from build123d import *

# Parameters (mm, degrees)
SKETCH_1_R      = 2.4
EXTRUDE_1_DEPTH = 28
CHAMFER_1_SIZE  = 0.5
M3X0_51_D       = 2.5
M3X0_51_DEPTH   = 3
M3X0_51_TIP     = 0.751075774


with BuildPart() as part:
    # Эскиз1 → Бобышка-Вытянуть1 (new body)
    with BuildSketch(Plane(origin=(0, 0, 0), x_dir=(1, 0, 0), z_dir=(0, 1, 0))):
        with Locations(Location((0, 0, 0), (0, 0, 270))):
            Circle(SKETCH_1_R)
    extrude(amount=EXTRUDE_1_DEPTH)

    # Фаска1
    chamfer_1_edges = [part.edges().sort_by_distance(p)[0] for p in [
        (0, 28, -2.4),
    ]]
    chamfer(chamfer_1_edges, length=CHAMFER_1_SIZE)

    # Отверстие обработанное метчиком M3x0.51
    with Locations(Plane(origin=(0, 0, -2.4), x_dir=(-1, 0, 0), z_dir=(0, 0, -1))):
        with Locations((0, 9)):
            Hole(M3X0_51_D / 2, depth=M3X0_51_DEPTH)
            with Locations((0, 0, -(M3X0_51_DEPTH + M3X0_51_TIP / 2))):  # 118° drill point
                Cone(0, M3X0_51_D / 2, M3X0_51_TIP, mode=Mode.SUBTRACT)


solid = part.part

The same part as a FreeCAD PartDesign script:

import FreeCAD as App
import Part
import Sketcher


def edges_at(feature, points):
    """Names of the edges that pass closest to the given points."""
    edges = feature.Shape.Edges
    near = lambda p: min(range(len(edges)), key=lambda i: edges[i].distToShape(Part.Vertex(*p))[0])
    return sorted({f"Edge{near(p) + 1}" for p in points})

doc = App.newDocument("Part")
body = doc.addObject("PartDesign::Body", "Body")

# Sketch on XZ plane
sketch1 = doc.addObject("Sketcher::SketchObject", "Sketch")
body.addObject(sketch1)
sketch1.AttachmentSupport = (doc.XZ_Plane, [""])
sketch1.MapMode = "FlatFace"
sketch1.addGeometry(Part.Circle(App.Vector(0, 0, 0), App.Vector(0, 0, 1), 2.4), False)
sketch1.addConstraint([
    Sketcher.Constraint("Coincident", 0, 3, -1, 1),
    Sketcher.Constraint("Diameter", 0, 4.8),
])
pad1 = doc.addObject("PartDesign::Pad", "Pad")
body.addObject(pad1)
pad1.Profile = sketch1
pad1.Length = 28
pad1.Reversed = True
doc.recompute()

chamfer = doc.addObject("PartDesign::Chamfer", "Chamfer")
body.addObject(chamfer)
chamfer.Base = (pad1, edges_at(pad1, [(0, 28, -2.4)]))
chamfer.Size = 0.5

# Sketch on XY plane
sketch2 = doc.addObject("Sketcher::SketchObject", "Sketch001")
body.addObject(sketch2)
sketch2.AttachmentSupport = (doc.XY_Plane, [""])
sketch2.MapMode = "FlatFace"
sketch2.AttachmentOffset = App.Placement(App.Vector(0, 0, -2.4), App.Rotation())
sketch2.addGeometry(Part.Circle(App.Vector(0, 9, 0), App.Vector(0, 0, 1), 1.2), False)
sketch2.addConstraint([
    Sketcher.Constraint("PointOnObject", 0, 3, -2),
    Sketcher.Constraint("Diameter", 0, 2.5),
    Sketcher.Constraint("DistanceY", -1, 1, 0, 3, 9.0),
])
doc.recompute()
hole = doc.addObject("PartDesign::Hole", "Hole")
body.addObject(hole)
hole.Profile = sketch2
hole.ThreadType = "None"
hole.Diameter = 2.5
hole.DepthType = "Dimension"
hole.Depth = 3
hole.DrillPoint = "Angled"
hole.DrillPointAngle = 118
hole.Reversed = True

doc.recompute()
